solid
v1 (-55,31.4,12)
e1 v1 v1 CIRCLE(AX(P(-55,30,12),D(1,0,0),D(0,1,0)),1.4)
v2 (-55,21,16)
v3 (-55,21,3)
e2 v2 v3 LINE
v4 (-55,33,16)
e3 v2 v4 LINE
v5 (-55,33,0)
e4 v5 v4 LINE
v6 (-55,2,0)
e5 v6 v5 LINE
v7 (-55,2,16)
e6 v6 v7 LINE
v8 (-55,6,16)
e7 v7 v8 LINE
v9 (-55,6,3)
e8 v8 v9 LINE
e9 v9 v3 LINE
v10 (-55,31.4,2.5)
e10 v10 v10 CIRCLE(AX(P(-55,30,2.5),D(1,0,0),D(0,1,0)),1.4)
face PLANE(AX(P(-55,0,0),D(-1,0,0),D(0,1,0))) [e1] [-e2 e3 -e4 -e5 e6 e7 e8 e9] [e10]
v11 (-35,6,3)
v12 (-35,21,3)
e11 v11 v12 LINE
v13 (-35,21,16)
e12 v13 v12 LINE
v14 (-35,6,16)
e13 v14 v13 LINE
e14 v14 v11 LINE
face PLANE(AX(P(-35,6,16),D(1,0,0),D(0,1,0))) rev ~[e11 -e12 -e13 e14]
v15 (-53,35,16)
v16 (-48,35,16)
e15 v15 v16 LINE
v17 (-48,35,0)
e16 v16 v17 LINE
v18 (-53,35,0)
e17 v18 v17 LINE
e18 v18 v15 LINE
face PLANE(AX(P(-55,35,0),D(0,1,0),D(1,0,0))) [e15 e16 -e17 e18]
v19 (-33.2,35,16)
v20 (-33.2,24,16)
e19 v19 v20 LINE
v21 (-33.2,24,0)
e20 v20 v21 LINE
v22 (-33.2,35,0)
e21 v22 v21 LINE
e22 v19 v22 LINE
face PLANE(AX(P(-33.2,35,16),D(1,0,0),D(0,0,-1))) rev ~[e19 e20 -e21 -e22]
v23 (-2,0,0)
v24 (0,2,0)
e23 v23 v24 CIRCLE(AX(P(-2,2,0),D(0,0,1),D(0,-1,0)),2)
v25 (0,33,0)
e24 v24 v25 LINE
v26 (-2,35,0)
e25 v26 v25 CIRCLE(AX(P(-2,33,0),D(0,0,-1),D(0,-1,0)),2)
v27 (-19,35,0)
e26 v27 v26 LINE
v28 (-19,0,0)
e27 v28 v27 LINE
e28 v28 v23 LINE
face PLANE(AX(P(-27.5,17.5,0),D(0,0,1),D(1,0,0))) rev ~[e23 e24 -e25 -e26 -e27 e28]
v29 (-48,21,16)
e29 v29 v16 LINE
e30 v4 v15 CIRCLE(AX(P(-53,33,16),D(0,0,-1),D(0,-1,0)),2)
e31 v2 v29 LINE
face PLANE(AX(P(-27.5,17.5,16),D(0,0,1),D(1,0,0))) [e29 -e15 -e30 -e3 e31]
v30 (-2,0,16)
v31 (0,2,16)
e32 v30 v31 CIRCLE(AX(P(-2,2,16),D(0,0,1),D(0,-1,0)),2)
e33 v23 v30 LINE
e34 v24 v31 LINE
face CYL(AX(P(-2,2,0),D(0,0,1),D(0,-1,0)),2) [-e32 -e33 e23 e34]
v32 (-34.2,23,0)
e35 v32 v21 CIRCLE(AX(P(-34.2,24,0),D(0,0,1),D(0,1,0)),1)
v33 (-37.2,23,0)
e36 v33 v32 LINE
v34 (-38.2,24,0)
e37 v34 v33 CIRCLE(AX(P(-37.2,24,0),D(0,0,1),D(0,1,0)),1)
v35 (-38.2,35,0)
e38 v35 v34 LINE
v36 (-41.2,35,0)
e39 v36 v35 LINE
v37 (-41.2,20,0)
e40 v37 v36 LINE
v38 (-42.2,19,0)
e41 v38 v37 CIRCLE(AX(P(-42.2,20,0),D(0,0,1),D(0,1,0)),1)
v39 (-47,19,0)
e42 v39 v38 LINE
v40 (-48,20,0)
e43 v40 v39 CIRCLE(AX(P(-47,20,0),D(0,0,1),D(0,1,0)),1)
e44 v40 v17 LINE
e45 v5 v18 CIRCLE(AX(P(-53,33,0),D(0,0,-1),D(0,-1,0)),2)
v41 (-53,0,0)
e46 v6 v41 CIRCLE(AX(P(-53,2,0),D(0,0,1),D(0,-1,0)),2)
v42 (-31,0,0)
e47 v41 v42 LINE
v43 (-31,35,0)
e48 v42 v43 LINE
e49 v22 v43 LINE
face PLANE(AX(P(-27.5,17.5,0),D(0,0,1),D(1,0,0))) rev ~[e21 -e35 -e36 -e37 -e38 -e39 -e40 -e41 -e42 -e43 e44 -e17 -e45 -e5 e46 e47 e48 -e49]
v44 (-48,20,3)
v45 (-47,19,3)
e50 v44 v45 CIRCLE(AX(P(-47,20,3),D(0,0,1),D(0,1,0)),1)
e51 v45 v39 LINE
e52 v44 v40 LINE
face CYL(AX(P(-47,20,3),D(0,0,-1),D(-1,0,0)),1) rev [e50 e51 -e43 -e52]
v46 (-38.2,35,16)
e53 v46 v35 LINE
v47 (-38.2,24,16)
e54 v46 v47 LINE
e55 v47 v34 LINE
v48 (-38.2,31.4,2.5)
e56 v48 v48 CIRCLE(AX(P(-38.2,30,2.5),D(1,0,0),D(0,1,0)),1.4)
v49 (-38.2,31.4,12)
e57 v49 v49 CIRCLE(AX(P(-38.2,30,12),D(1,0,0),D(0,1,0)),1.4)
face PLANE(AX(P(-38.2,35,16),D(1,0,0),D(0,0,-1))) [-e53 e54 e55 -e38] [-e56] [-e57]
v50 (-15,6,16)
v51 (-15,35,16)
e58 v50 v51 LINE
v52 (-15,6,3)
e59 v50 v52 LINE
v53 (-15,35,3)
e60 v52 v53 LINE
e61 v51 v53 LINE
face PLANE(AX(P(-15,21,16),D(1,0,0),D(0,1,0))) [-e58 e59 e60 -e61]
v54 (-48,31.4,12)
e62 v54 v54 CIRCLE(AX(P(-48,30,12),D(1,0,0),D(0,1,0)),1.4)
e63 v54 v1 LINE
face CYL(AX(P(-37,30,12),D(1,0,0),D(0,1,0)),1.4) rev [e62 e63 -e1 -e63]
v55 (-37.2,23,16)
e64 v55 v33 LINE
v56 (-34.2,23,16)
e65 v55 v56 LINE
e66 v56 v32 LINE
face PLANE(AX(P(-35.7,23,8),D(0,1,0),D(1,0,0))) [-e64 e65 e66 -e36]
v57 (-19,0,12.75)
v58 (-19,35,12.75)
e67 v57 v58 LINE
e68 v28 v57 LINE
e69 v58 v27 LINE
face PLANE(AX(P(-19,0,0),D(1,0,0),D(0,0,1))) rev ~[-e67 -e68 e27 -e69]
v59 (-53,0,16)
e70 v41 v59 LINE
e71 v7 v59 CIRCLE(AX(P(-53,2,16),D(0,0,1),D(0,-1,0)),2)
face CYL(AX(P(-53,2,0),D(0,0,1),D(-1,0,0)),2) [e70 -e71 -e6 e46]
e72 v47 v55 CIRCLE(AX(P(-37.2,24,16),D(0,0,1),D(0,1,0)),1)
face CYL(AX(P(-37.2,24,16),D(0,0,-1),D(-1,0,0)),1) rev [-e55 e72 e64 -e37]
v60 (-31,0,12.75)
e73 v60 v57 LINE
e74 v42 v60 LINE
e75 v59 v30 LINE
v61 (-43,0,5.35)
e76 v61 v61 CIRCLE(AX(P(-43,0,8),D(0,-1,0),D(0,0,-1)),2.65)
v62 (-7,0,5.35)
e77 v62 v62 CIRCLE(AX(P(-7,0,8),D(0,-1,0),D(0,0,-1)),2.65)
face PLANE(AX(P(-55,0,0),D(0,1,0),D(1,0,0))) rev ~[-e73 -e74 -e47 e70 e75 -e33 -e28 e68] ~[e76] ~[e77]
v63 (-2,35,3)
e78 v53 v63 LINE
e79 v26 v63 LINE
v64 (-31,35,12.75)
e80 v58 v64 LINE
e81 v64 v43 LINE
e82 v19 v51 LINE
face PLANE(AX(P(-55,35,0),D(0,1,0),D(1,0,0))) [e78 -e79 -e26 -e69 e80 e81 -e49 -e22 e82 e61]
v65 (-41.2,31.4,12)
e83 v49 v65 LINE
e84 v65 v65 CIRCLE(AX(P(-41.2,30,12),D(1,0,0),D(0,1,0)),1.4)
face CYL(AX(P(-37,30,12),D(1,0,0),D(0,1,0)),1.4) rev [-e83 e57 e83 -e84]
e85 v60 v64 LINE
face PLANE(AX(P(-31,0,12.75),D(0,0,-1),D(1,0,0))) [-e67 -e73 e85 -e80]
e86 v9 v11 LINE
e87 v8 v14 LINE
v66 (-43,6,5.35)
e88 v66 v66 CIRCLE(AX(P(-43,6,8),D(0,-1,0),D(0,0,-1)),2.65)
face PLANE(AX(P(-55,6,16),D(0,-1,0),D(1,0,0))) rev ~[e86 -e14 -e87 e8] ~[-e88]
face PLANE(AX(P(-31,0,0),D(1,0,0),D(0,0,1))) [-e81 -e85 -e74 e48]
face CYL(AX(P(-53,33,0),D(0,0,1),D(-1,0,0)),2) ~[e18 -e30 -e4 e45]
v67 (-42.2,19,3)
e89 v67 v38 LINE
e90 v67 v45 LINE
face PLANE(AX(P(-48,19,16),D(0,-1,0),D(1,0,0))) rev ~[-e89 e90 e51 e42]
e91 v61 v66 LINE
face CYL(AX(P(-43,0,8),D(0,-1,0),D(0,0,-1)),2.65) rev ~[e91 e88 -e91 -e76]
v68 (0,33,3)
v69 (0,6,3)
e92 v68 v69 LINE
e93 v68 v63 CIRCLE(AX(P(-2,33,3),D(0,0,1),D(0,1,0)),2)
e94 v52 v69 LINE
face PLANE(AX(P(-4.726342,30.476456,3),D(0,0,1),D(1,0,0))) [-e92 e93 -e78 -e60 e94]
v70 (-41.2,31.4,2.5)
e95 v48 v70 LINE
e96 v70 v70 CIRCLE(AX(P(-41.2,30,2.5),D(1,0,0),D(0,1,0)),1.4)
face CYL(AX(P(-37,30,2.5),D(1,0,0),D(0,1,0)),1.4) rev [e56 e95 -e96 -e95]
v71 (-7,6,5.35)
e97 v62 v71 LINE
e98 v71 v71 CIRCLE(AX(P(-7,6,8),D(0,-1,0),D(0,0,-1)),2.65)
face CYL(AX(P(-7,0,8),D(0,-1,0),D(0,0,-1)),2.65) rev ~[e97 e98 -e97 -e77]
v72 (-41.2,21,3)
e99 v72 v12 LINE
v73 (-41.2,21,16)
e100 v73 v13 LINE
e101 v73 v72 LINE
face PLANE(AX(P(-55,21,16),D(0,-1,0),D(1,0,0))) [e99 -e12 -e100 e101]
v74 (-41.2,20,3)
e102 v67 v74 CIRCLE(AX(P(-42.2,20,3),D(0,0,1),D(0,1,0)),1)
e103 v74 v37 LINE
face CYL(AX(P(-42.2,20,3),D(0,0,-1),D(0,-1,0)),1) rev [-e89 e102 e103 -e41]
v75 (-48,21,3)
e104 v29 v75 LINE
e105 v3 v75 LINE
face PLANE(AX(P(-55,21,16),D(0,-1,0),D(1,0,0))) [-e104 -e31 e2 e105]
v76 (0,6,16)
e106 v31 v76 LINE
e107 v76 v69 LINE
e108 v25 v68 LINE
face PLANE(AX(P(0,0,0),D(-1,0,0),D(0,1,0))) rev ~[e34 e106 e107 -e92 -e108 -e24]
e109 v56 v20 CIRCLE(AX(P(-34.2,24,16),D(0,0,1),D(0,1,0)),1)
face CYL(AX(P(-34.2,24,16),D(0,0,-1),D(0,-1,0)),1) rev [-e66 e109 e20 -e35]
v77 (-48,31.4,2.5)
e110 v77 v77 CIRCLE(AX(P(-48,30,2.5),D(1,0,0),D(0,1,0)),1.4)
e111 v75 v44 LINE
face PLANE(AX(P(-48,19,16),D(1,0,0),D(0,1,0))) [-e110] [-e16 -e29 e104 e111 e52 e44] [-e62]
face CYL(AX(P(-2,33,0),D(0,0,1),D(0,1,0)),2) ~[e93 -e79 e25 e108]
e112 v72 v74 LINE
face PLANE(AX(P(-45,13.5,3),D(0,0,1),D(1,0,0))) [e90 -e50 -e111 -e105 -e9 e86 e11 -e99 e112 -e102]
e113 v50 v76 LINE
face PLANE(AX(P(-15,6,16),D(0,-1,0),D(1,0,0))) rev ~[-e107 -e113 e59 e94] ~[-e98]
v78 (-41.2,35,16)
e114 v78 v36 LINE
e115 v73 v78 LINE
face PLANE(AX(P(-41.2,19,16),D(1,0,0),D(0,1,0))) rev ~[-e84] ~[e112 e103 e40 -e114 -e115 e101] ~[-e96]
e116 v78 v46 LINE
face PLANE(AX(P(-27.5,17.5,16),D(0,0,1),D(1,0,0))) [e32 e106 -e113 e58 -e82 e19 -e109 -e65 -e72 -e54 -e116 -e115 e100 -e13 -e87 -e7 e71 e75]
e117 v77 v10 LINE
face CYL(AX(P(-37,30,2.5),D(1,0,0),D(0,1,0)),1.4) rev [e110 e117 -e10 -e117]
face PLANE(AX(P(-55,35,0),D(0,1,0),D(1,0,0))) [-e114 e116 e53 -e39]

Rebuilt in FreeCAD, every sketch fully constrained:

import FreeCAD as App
import Part
import Sketcher

V = App.Vector


def edges_at(feature, points):
    """Names of the edges that pass closest to the given points."""
    edges = feature.Shape.Edges
    near = lambda p: min(range(len(edges)), key=lambda i: edges[i].distToShape(Part.Vertex(*p))[0])
    return sorted({f"Edge{near(p) + 1}" for p in points})

doc = App.newDocument("Part")
body = doc.addObject("PartDesign::Body", "Body")

sketch1 = body.newObject("Sketcher::SketchObject", "Sketch")
sketch1.AttachmentSupport = (doc.getObject("XY_Plane"), [""])
sketch1.MapMode = "FlatFace"
sketch1.addGeometry([
    Part.LineSegment(V(-55, 35, 0), V(-55, 0, 0)),
    Part.LineSegment(V(-55, 0, 0), V(0, 0, 0)),
    Part.LineSegment(V(0, 0, 0), V(0, 35, 0)),
    Part.LineSegment(V(0, 35, 0), V(-55, 35, 0)),
], False)
sketch1.addConstraint([
    Sketcher.Constraint("Coincident", 0, 2, 1, 1),
    Sketcher.Constraint("Coincident", 1, 2, 2, 1),
    Sketcher.Constraint("Coincident", 2, 2, 3, 1),
    Sketcher.Constraint("Coincident", 3, 2, 0, 1),
    Sketcher.Constraint("Vertical", 0),
    Sketcher.Constraint("Horizontal", 1),
    Sketcher.Constraint("Vertical", 2),
    Sketcher.Constraint("Horizontal", 3),
    Sketcher.Constraint("Coincident", 1, 2, -1, 1),
    Sketcher.Constraint("DistanceX", 1, 1, 1, 2, 55.0),
    Sketcher.Constraint("DistanceY", 0, 2, 0, 1, 35.0),
])
pad1 = body.newObject("PartDesign::Pad", "Pad")
pad1.Profile = sketch1
pad1.Length = 16

sketch2 = body.newObject("Sketcher::SketchObject", "Sketch001")
sketch2.AttachmentSupport = (doc.getObject("XZ_Plane"), [""])
sketch2.MapMode = "FlatFace"
sketch2.addGeometry([
    Part.Circle(V(-43, 8, 0), V(0, 0, 1), 2.65),
    Part.Circle(V(-7, 8, 0), V(0, 0, 1), 2.65),
], False)
sketch2.addConstraint([
    Sketcher.Constraint("Equal", 0, 1),
    Sketcher.Constraint("Horizontal", 0, 3, 1, 3),
    Sketcher.Constraint("Diameter", 0, 5.3),
    Sketcher.Constraint("DistanceX", 0, 3, -1, 1, 43.0),
    Sketcher.Constraint("DistanceY", -1, 1, 0, 3, 8.0),
    Sketcher.Constraint("DistanceX", 1, 3, -1, 1, 7.0),
])
pocket1 = body.newObject("PartDesign::Pocket", "Pocket")
pocket1.Profile = sketch2
pocket1.Length = 13

sketch3 = body.newObject("Sketcher::SketchObject", "Sketch002")
sketch3.AttachmentSupport = (doc.getObject("XZ_Plane"), [""])
sketch3.MapMode = "FlatFace"
sketch3.addGeometry([
    Part.LineSegment(V(-31, 12.75, 0), V(-31, 0, 0)),
    Part.LineSegment(V(-31, 0, 0), V(-19, 0, 0)),
    Part.LineSegment(V(-19, 0, 0), V(-19, 12.75, 0)),
    Part.LineSegment(V(-19, 12.75, 0), V(-31, 12.75, 0)),
], False)
sketch3.addConstraint([
    Sketcher.Constraint("Coincident", 0, 2, 1, 1),
    Sketcher.Constraint("Coincident", 1, 2, 2, 1),
    Sketcher.Constraint("Coincident", 2, 2, 3, 1),
    Sketcher.Constraint("Coincident", 3, 2, 0, 1),
    Sketcher.Constraint("Vertical", 0),
    Sketcher.Constraint("Horizontal", 1),
    Sketcher.Constraint("Vertical", 2),
    Sketcher.Constraint("Horizontal", 3),
    Sketcher.Constraint("PointOnObject", 0, 2, -1),
    Sketcher.Constraint("DistanceX", 1, 1, 1, 2, 12.0),
    Sketcher.Constraint("DistanceX", 0, 2, -1, 1, 31.0),
    Sketcher.Constraint("DistanceY", 0, 2, 0, 1, 12.75),
])
pocket2 = body.newObject("PartDesign::Pocket", "Pocket001")
pocket2.Profile = sketch3
pocket2.Type = "ThroughAll"
doc.recompute()

fillet = body.newObject("PartDesign::Fillet", "Fillet")
fillet.Base = (pocket2, edges_at(pocket2, [
    (-55, 35, 8),
    (0, 35, 8),
    (0, 0, 8),
    (-55, 0, 8),
]))
fillet.Radius = 2

sketch4 = body.newObject("Sketcher::SketchObject", "Sketch003")
sketch4.AttachmentSupport = (doc.getObject("YZ_Plane"), [""])
sketch4.MapMode = "FlatFace"
sketch4.AttachmentOffset = App.Placement(V(0, 0, -55), App.Rotation())
sketch4.addGeometry([
    Part.Circle(V(30, 12, 0), V(0, 0, 1), 1.4),
    Part.Circle(V(30, 2.5, 0), V(0, 0, 1), 1.4),
], False)
sketch4.addConstraint([
    Sketcher.Constraint("Equal", 0, 1),
    Sketcher.Constraint("Vertical", 0, 3, 1, 3),
    Sketcher.Constraint("Diameter", 0, 2.8),
    Sketcher.Constraint("DistanceX", -1, 1, 0, 3, 30.0),
    Sketcher.Constraint("DistanceY", -1, 1, 0, 3, 12.0),
    Sketcher.Constraint("DistanceY", -1, 1, 1, 3, 2.5),
])
pocket3 = body.newObject("PartDesign::Pocket", "Pocket002")
pocket3.Profile = sketch4
pocket3.Type = "TwoLengths"
pocket3.Length = 68.126746
pocket3.Length2 = 18

sketch5 = body.newObject("Sketcher::SketchObject", "Sketch004")
sketch5.AttachmentSupport = (doc.getObject("XY_Plane"), [""])
sketch5.MapMode = "FlatFace"
sketch5.AttachmentOffset = App.Placement(V(0, 0, 16), App.Rotation())
sketch5.addGeometry([
    Part.LineSegment(V(-48, 35, 0), V(-48, 19, 0)),
    Part.LineSegment(V(-48, 19, 0), V(-41.2, 19, 0)),
    Part.LineSegment(V(-41.2, 19, 0), V(-41.2, 35, 0)),
    Part.LineSegment(V(-41.2, 35, 0), V(-48, 35, 0)),
], False)
sketch5.addConstraint([
    Sketcher.Constraint("Coincident", 0, 2, 1, 1),
    Sketcher.Constraint("Coincident", 1, 2, 2, 1),
    Sketcher.Constraint("Coincident", 2, 2, 3, 1),
    Sketcher.Constraint("Coincident", 3, 2, 0, 1),
    Sketcher.Constraint("Vertical", 0),
    Sketcher.Constraint("Horizontal", 1),
    Sketcher.Constraint("Vertical", 2),
    Sketcher.Constraint("Horizontal", 3),
    Sketcher.Constraint("DistanceY", 0, 2, 0, 1, 16.0),
    Sketcher.Constraint("DistanceX", 1, 1, 1, 2, 6.8),
    Sketcher.Constraint("DistanceX", 0, 2, -1, 1, 48.0),
    Sketcher.Constraint("DistanceY", -1, 1, 0, 2, 19.0),
])
pocket4 = body.newObject("PartDesign::Pocket", "Pocket003")
pocket4.Profile = sketch5
pocket4.Type = "ThroughAll"

sketch6 = body.newObject("Sketcher::SketchObject", "Sketch005")
sketch6.AttachmentSupport = (doc.getObject("XY_Plane"), [""])
sketch6.MapMode = "FlatFace"
sketch6.AttachmentOffset = App.Placement(V(0, 0, 16), App.Rotation())
sketch6.addGeometry([
    Part.LineSegment(V(-15, 21, 0), V(-15, 6, 0)),
    Part.LineSegment(V(-15, 6, 0), V(0, 6, 0)),
    Part.LineSegment(V(0, 6, 0), V(0, 21, 0)),
    Part.LineSegment(V(0, 21, 0), V(-15, 21, 0)),
    Part.LineSegment(V(-55, 21, 0), V(-55, 6, 0)),
    Part.LineSegment(V(-55, 6, 0), V(-35, 6, 0)),
    Part.LineSegment(V(-35, 6, 0), V(-35, 21, 0)),
    Part.LineSegment(V(-35, 21, 0), V(-55, 21, 0)),
], False)
sketch6.addConstraint([
    Sketcher.Constraint("Coincident", 0, 2, 1, 1),
    Sketcher.Constraint("Coincident", 1, 2, 2, 1),
    Sketcher.Constraint("Coincident", 2, 2, 3, 1),
    Sketcher.Constraint("Coincident", 3, 2, 0, 1),
    Sketcher.Constraint("Coincident", 4, 2, 5, 1),
    Sketcher.Constraint("Coincident", 5, 2, 6, 1),
    Sketcher.Constraint("Coincident", 6, 2, 7, 1),
    Sketcher.Constraint("Coincident", 7, 2, 4, 1),
    Sketcher.Constraint("Vertical", 0),
    Sketcher.Constraint("Horizontal", 1),
    Sketcher.Constraint("Vertical", 2),
    Sketcher.Constraint("Horizontal", 3),
    Sketcher.Constraint("Vertical", 4),
    Sketcher.Constraint("Horizontal", 5),
    Sketcher.Constraint("Vertical", 6),
    Sketcher.Constraint("Horizontal", 7),
    Sketcher.Constraint("PointOnObject", 1, 2, -2),
    Sketcher.Constraint("Horizontal", 1, 2, 4, 2),
    Sketcher.Constraint("Horizontal", 3, 2, 6, 2),
    Sketcher.Constraint("Equal", 3, 0),
    Sketcher.Constraint("DistanceX", 1, 1, 1, 2, 15.0),
    Sketcher.Constraint("DistanceX", 5, 1, 5, 2, 20.0),
    Sketcher.Constraint("DistanceY", -1, 1, 0, 2, 6.0),
    Sketcher.Constraint("DistanceX", 4, 2, -1, 1, 55.0),
])
pocket5 = body.newObject("PartDesign::Pocket", "Pocket004")
pocket5.Profile = sketch6
pocket5.Length = 13

sketch7 = body.newObject("Sketcher::SketchObject", "Sketch006")
sketch7.AttachmentSupport = (doc.getObject("XY_Plane"), [""])
sketch7.MapMode = "FlatFace"
sketch7.AttachmentOffset = App.Placement(V(0, 0, 16), App.Rotation())
sketch7.addGeometry([
    Part.LineSegment(V(-15, 39.952913, 0), V(-15, 21, 0)),
    Part.LineSegment(V(-15, 21, 0), V(5.547316, 21, 0)),
    Part.LineSegment(V(5.547316, 21, 0), V(5.547316, 39.952913, 0)),
    Part.LineSegment(V(5.547316, 39.952913, 0), V(-15, 39.952913, 0)),
], False)
sketch7.addConstraint([
    Sketcher.Constraint("Coincident", 0, 2, 1, 1),
    Sketcher.Constraint("Coincident", 1, 2, 2, 1),
    Sketcher.Constraint("Coincident", 2, 2, 3, 1),
    Sketcher.Constraint("Coincident", 3, 2, 0, 1),
    Sketcher.Constraint("Vertical", 0),
    Sketcher.Constraint("Horizontal", 1),
    Sketcher.Constraint("Vertical", 2),
    Sketcher.Constraint("Horizontal", 3),
    Sketcher.Constraint("DistanceX", 0, 2, -1, 1, 15.0),
    Sketcher.Constraint("DistanceY", -1, 1, 0, 2, 21.0),
    Sketcher.Constraint("DistanceX", 1, 1, 1, 2, 20.547316),
    Sketcher.Constraint("DistanceY", 0, 2, 0, 1, 18.952913),
])
pocket6 = body.newObject("PartDesign::Pocket", "Pocket005")
pocket6.Profile = sketch7
pocket6.Length = 13

sketch8 = body.newObject("Sketcher::SketchObject", "Sketch007")
sketch8.AttachmentSupport = (doc.getObject("XZ_Plane"), [""])
sketch8.MapMode = "FlatFace"
sketch8.AttachmentOffset = App.Placement(V(0, 0, -35), App.Rotation())
sketch8.addGeometry([
    Part.LineSegment(V(-38.2, 0, 0), V(-38.2, 16, 0)),
    Part.LineSegment(V(-38.2, 16, 0), V(-33.2, 16, 0)),
    Part.LineSegment(V(-33.2, 16, 0), V(-33.2, 0, 0)),
    Part.LineSegment(V(-33.2, 0, 0), V(-38.2, 0, 0)),
], False)
sketch8.addConstraint([
    Sketcher.Constraint("Coincident", 0, 2, 1, 1),
    Sketcher.Constraint("Coincident", 1, 2, 2, 1),
    Sketcher.Constraint("Coincident", 2, 2, 3, 1),
    Sketcher.Constraint("Coincident", 3, 2, 0, 1),
    Sketcher.Constraint("Vertical", 0),
    Sketcher.Constraint("Horizontal", 1),
    Sketcher.Constraint("Vertical", 2),
    Sketcher.Constraint("Horizontal", 3),
    Sketcher.Constraint("PointOnObject", 2, 2, -1),
    Sketcher.Constraint("DistanceX", 1, 1, 1, 2, 5.0),
    Sketcher.Constraint("DistanceY", 0, 1, 0, 2, 16.0),
    Sketcher.Constraint("DistanceX", 0, 2, -1, 1, 38.2),
])
pocket7 = body.newObject("PartDesign::Pocket", "Pocket006")
pocket7.Profile = sketch8
pocket7.Length = 12
pocket7.Reversed = True
doc.recompute()

fillet2 = body.newObject("PartDesign::Fillet", "Fillet001")
fillet2.Base = (pocket7, edges_at(pocket7, [
    (-38.2, 23, 8),
    (-33.2, 23, 8),
    (-48, 19, 1.5),
    (-41.2, 19, 1.5),
]))
fillet2.Radius = 1

doc.recompute()
